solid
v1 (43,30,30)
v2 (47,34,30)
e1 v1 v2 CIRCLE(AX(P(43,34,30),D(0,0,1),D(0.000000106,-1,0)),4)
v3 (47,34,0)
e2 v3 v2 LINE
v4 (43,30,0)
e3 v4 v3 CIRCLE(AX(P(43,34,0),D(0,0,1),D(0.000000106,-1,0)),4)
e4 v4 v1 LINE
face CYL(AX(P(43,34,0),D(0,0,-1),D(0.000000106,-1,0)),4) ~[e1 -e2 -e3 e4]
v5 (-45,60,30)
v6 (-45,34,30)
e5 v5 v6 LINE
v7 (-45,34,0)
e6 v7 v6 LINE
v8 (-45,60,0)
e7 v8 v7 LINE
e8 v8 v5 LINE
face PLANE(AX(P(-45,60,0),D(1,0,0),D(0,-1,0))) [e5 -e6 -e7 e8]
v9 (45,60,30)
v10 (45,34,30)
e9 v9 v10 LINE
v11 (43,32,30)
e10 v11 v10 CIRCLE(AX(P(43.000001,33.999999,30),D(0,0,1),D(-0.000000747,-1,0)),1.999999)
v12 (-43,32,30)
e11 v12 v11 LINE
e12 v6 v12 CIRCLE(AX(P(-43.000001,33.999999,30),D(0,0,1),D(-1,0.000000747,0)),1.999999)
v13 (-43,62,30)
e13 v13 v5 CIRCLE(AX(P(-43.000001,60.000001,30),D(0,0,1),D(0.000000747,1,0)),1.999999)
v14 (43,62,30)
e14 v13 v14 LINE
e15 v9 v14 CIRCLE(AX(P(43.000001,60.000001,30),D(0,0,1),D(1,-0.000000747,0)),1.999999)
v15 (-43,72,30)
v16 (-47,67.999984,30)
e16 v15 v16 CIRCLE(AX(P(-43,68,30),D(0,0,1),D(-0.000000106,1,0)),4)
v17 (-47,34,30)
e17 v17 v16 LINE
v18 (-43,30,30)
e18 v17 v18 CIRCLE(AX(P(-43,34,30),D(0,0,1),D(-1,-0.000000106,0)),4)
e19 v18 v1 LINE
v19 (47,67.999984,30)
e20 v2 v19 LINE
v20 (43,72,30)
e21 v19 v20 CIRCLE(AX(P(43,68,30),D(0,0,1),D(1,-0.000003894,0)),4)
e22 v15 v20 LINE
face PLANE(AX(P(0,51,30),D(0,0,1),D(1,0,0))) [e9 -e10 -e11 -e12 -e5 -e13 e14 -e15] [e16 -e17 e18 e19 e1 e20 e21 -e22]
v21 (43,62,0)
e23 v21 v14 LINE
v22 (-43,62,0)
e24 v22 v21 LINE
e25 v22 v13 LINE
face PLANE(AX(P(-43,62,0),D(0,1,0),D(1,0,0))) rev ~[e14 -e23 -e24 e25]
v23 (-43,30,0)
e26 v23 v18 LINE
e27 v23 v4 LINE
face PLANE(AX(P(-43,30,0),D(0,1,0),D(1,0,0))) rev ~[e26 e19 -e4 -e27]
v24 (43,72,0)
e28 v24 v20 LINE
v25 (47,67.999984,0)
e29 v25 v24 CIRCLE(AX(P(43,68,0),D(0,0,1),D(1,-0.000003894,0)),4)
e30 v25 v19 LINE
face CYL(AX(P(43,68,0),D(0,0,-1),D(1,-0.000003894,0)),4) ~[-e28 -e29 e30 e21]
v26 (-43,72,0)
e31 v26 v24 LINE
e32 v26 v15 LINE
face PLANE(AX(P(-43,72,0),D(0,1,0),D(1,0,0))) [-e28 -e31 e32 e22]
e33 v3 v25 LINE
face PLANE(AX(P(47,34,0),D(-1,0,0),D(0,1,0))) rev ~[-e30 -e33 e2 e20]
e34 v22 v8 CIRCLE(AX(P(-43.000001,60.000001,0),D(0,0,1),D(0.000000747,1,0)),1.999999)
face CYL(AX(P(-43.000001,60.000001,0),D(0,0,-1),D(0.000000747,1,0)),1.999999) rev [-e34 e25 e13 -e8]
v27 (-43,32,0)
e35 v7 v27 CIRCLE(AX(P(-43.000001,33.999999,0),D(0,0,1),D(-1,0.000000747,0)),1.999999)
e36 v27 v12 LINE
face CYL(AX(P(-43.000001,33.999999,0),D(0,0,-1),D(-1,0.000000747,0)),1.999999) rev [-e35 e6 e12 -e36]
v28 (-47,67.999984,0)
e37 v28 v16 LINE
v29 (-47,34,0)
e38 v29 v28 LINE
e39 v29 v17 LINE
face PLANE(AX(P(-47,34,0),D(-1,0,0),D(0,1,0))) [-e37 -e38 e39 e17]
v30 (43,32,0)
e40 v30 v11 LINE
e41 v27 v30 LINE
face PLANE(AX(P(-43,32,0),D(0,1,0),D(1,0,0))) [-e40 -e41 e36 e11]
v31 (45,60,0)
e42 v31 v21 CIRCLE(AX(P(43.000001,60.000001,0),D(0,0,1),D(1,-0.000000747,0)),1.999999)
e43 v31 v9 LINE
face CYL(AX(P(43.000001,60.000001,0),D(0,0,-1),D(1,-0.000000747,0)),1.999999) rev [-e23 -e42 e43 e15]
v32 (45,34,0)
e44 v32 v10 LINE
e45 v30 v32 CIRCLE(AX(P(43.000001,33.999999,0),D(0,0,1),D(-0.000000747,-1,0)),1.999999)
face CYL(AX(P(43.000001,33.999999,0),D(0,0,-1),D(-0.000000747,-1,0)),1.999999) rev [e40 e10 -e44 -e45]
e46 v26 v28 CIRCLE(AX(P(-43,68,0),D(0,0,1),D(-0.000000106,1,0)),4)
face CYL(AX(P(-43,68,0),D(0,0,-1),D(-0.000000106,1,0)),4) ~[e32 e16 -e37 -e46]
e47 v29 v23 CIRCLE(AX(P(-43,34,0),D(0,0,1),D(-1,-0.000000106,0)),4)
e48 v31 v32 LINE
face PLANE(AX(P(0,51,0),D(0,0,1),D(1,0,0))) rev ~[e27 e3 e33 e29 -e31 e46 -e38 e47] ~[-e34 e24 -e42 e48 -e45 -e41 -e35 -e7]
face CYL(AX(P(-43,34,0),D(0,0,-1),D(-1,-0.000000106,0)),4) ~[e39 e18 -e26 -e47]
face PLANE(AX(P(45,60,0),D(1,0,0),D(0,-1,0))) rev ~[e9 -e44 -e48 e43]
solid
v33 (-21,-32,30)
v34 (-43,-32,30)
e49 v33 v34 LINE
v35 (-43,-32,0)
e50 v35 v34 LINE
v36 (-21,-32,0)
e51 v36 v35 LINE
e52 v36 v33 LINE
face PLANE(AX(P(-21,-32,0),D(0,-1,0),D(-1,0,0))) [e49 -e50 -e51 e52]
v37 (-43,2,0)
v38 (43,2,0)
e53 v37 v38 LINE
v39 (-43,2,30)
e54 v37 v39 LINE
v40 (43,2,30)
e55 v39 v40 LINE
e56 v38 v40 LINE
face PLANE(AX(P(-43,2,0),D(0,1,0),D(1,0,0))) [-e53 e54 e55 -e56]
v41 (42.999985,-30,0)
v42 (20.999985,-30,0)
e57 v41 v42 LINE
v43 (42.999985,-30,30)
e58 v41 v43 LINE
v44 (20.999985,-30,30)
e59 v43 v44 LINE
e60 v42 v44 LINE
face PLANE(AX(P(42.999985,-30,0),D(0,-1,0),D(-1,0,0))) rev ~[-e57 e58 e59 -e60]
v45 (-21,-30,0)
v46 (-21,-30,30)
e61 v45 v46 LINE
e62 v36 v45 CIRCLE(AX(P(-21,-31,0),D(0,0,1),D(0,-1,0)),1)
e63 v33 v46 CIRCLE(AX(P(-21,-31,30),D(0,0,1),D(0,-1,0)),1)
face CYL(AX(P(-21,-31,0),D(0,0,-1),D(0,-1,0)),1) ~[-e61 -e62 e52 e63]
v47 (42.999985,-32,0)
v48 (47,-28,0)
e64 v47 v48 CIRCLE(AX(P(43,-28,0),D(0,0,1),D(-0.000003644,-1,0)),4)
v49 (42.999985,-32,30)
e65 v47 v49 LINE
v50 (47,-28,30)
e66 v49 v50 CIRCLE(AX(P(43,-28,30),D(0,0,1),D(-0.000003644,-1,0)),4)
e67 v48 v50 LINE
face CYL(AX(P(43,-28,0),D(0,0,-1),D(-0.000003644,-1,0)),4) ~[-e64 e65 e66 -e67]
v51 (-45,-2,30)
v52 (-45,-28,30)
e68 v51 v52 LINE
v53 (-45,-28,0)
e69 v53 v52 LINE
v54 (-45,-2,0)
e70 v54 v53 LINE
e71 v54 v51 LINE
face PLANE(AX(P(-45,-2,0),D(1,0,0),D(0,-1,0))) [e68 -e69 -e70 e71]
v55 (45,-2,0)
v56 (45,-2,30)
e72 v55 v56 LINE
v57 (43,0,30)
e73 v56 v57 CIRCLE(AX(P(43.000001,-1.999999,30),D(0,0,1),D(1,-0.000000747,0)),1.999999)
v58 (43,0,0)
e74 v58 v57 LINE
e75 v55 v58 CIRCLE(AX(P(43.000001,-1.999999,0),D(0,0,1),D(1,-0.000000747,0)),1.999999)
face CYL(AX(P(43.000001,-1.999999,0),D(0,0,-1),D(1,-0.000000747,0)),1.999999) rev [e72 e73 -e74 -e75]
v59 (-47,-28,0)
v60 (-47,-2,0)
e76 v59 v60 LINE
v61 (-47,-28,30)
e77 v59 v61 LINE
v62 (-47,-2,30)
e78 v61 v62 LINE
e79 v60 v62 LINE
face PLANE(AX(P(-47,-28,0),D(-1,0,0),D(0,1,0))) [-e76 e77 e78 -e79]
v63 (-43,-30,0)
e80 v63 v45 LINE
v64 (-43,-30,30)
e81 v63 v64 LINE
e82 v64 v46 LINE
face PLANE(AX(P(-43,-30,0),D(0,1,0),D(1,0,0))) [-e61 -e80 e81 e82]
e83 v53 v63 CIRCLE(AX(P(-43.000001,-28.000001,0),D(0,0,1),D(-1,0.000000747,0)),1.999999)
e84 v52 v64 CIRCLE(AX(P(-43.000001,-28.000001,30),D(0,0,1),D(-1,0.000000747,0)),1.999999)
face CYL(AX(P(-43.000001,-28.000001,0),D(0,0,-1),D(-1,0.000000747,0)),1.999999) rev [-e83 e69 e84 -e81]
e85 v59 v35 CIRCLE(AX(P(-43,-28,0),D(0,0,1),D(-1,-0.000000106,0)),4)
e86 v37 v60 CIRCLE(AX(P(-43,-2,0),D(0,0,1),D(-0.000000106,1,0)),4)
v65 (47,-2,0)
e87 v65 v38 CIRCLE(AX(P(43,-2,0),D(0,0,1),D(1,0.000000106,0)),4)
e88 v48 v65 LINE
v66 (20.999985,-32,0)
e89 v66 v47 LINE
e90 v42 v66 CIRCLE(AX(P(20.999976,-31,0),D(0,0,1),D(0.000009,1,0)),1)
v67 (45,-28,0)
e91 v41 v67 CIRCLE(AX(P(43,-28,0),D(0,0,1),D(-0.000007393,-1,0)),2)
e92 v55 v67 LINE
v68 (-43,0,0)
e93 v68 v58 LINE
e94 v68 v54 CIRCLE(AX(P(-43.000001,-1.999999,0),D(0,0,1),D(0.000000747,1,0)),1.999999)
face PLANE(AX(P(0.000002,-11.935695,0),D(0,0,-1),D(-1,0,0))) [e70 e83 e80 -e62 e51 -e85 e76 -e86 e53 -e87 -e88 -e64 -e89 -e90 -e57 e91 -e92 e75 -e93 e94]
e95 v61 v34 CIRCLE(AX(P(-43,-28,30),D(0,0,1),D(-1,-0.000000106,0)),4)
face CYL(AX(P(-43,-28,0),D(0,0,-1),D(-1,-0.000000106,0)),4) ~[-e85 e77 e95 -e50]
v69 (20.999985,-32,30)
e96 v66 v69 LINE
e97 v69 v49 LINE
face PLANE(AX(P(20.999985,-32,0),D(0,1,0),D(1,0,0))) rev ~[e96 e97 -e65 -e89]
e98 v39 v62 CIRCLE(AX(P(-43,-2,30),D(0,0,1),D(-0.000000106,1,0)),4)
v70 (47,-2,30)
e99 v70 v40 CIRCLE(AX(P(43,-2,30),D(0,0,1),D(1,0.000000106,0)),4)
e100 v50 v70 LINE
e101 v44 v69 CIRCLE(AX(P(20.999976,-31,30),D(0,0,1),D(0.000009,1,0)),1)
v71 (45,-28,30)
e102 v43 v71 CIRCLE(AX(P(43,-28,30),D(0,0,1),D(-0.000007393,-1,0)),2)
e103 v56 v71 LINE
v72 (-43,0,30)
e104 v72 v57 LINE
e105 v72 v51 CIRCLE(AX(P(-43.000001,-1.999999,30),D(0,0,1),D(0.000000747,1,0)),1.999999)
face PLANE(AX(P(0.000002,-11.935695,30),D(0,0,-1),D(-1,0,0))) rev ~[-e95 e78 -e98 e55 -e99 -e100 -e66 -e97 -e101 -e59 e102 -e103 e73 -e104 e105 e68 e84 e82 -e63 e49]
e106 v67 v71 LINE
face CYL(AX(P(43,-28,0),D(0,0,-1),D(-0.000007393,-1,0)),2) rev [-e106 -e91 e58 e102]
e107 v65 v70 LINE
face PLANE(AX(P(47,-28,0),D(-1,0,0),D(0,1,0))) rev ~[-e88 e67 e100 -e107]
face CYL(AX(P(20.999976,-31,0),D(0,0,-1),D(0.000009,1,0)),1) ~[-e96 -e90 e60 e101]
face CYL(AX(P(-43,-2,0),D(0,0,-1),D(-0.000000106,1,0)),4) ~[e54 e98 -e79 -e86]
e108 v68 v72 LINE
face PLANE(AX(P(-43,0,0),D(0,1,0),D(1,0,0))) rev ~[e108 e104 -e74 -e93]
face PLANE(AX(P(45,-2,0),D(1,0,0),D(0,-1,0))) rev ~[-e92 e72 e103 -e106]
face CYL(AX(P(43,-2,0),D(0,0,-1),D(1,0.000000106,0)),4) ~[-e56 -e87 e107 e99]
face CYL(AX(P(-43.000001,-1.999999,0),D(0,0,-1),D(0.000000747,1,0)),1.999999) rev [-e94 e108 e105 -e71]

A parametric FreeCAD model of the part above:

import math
import FreeCAD as App
import Part
import Sketcher

V = App.Vector
Q = App.Units.Quantity

doc = App.newDocument("Part")
body = doc.addObject("PartDesign::Body", "Body")

# Sketch on XY plane
sketch1 = body.newObject("Sketcher::SketchObject", "Sketch")
sketch1.AttachmentSupport = (doc.getObject("XY_Plane"), [""])
sketch1.MapMode = "FlatFace"
sketch1.addGeometry(Part.ArcOfCircle(Part.Circle(V(-43, -2, 0), V(0, 0, 1), 2), math.radians(90), math.radians(180)), False)
sketch1.addGeometry(Part.LineSegment(V(-43, 0, 0), V(43, 0, 0)), False)
sketch1.addGeometry(Part.ArcOfCircle(Part.Circle(V(43, -2, 0), V(0, 0, 1), 2), math.radians(0), math.radians(90)), False)
sketch1.addGeometry(Part.LineSegment(V(45, -2, 0), V(45, -28, 0)), False)
sketch1.addGeometry(Part.ArcOfCircle(Part.Circle(V(43, -28, 0), V(0, 0, 1), 2), math.radians(-90), math.radians(0)), False)
sketch1.addGeometry(Part.LineSegment(V(43, -30, 0), V(21, -30, 0)), False)
sketch1.addGeometry(Part.ArcOfCircle(Part.Circle(V(21, -31, 0), V(0, 0, 1), 1), math.radians(90), math.radians(270)), False)
sketch1.addGeometry(Part.LineSegment(V(21, -32, 0), V(43, -32, 0)), False)
sketch1.addGeometry(Part.ArcOfCircle(Part.Circle(V(43, -28, 0), V(0, 0, 1), 4), math.radians(-90), math.radians(0)), False)
sketch1.addGeometry(Part.LineSegment(V(47, -28, 0), V(47, -2, 0)), False)
sketch1.addGeometry(Part.ArcOfCircle(Part.Circle(V(43, -2, 0), V(0, 0, 1), 4), math.radians(0), math.radians(90)), False)
sketch1.addGeometry(Part.LineSegment(V(43, 2, 0), V(-43, 2, 0)), False)
sketch1.addGeometry(Part.ArcOfCircle(Part.Circle(V(-43, -2, 0), V(0, 0, 1), 4), math.radians(90), math.radians(180)), False)
sketch1.addGeometry(Part.LineSegment(V(-47, -2, 0), V(-47, -28, 0)), False)
sketch1.addGeometry(Part.ArcOfCircle(Part.Circle(V(-43, -28, 0), V(0, 0, 1), 4), math.radians(-180), math.radians(-90)), False)
sketch1.addGeometry(Part.LineSegment(V(-43, -32, 0), V(-21, -32, 0)), False)
sketch1.addGeometry(Part.ArcOfCircle(Part.Circle(V(-21, -31, 0), V(0, 0, 1), 1), math.radians(-90), math.radians(90)), False)
sketch1.addGeometry(Part.LineSegment(V(-21, -30, 0), V(-43, -30, 0)), False)
sketch1.addGeometry(Part.ArcOfCircle(Part.Circle(V(-43, -28, 0), V(0, 0, 1), 2), math.radians(180), math.radians(270)), False)
sketch1.addGeometry(Part.LineSegment(V(-45, -28, 0), V(-45, -2, 0)), False)
sketch1.addConstraint(Sketcher.Constraint("Tangent", 0, 1, 1, 1))
sketch1.addConstraint(Sketcher.Constraint("Tangent", 1, 2, 2, 2))
sketch1.addConstraint(Sketcher.Constraint("Tangent", 2, 1, 3, 1))
sketch1.addConstraint(Sketcher.Constraint("Tangent", 3, 2, 4, 2))
sketch1.addConstraint(Sketcher.Constraint("Coincident", 4, 1, 5, 1))
sketch1.addConstraint(Sketcher.Constraint("Coincident", 5, 2, 6, 1))
sketch1.addConstraint(Sketcher.Constraint("Coincident", 6, 2, 7, 1))
sketch1.addConstraint(Sketcher.Constraint("Coincident", 7, 2, 8, 1))
sketch1.addConstraint(Sketcher.Constraint("Tangent", 8, 2, 9, 1))
sketch1.addConstraint(Sketcher.Constraint("Tangent", 9, 2, 10, 1))
sketch1.addConstraint(Sketcher.Constraint("Tangent", 10, 2, 11, 1))
sketch1.addConstraint(Sketcher.Constraint("Tangent", 11, 2, 12, 1))
sketch1.addConstraint(Sketcher.Constraint("Tangent", 12, 2, 13, 1))
sketch1.addConstraint(Sketcher.Constraint("Tangent", 13, 2, 14, 1))
sketch1.addConstraint(Sketcher.Constraint("Tangent", 14, 2, 15, 1))
sketch1.addConstraint(Sketcher.Constraint("Tangent", 15, 2, 16, 1))
sketch1.addConstraint(Sketcher.Constraint("Tangent", 16, 2, 17, 1))
sketch1.addConstraint(Sketcher.Constraint("Tangent", 17, 2, 18, 2))
sketch1.addConstraint(Sketcher.Constraint("Tangent", 18, 1, 19, 1))
sketch1.addConstraint(Sketcher.Constraint("Tangent", 19, 2, 0, 2))
sketch1.addConstraint(Sketcher.Constraint("Horizontal", 1))
sketch1.addConstraint(Sketcher.Constraint("Vertical", 3))
sketch1.addConstraint(Sketcher.Constraint("Horizontal", 5))
sketch1.addConstraint(Sketcher.Constraint("Horizontal", 7))
sketch1.addConstraint(Sketcher.Constraint("Vertical", 9))
sketch1.addConstraint(Sketcher.Constraint("Horizontal", 11))
sketch1.addConstraint(Sketcher.Constraint("Vertical", 13))
sketch1.addConstraint(Sketcher.Constraint("Horizontal", 15))
sketch1.addConstraint(Sketcher.Constraint("Horizontal", 17))
sketch1.addConstraint(Sketcher.Constraint("Vertical", 19))
sketch1.addConstraint(Sketcher.Constraint("Coincident", 8, 3, 4, 3))
sketch1.addConstraint(Sketcher.Constraint("Coincident", 10, 3, 2, 3))
sketch1.addConstraint(Sketcher.Constraint("Coincident", 12, 3, 0, 3))
sketch1.addConstraint(Sketcher.Constraint("Coincident", 18, 3, 14, 3))
sketch1.addConstraint(Sketcher.Constraint("Equal", 0, 2))
sketch1.addConstraint(Sketcher.Constraint("Equal", 2, 4))
sketch1.addConstraint(Sketcher.Constraint("Equal", 12, 14))
sketch1.addConstraint(Sketcher.Constraint("Symmetric", 0, 1, 1, 2, -1, 1))
sketch1.addConstraint(Sketcher.Constraint("Horizontal", 8, 3, 14, 3))
sketch1.addConstraint(Sketcher.Constraint("Vertical", 5, 2, 6, 2))
sketch1.addConstraint(Sketcher.Constraint("Vertical", 4, 1, 7, 2))
sketch1.addConstraint(Sketcher.Constraint("Equal", 7, 15))
sketch1.addConstraint(Sketcher.Constraint("Radius", 0, Q("1.999999 mm")))
sketch1.addConstraint(Sketcher.Constraint("Radius", 6, Q("1 mm")))
sketch1.addConstraint(Sketcher.Constraint("DistanceX", 1, 1, 1, 2, Q("86 mm")))
sketch1.addConstraint(Sketcher.Constraint("DistanceX", 5, 2, 5, 1, Q("22 mm")))
sketch1.addConstraint(Sketcher.Constraint("DistanceY", 3, 2, 3, 1, Q("26 mm")))
sketch1.addConstraint(Sketcher.Constraint("DistanceX", 6, 3, 4, 1, Q("22.000009 mm")))
sketch1.addConstraint(Sketcher.Constraint("DistanceX", -1, 1, 6, 3, Q("20.999976 mm")))
pad1 = body.newObject("PartDesign::Pad", "Pad")
pad1.Profile = sketch1
pad1.Length = 30
body2 = doc.addObject("PartDesign::Body", "Body001")

# Sketch on XY plane
sketch2 = body2.newObject("Sketcher::SketchObject", "Sketch001")
sketch2.AttachmentSupport = (doc.getObject("XY_Plane001"), [""])
sketch2.MapMode = "FlatFace"
sketch2.addGeometry(Part.ArcOfCircle(Part.Circle(V(-43, 34, 0), V(0, 0, 1), 4), math.radians(-180), math.radians(-90)), False)
sketch2.addGeometry(Part.LineSegment(V(-43, 30, 0), V(43, 30, 0)), False)
sketch2.addGeometry(Part.ArcOfCircle(Part.Circle(V(43, 34, 0), V(0, 0, 1), 4), math.radians(-90), math.radians(0)), False)
sketch2.addGeometry(Part.LineSegment(V(47, 34, 0), V(47, 68, 0)), False)
sketch2.addGeometry(Part.ArcOfCircle(Part.Circle(V(43, 68, 0), V(0, 0, 1), 4), math.radians(0), math.radians(90)), False)
sketch2.addGeometry(Part.LineSegment(V(43, 72, 0), V(-43, 72, 0)), False)
sketch2.addGeometry(Part.ArcOfCircle(Part.Circle(V(-43, 68, 0), V(0, 0, 1), 4), math.radians(90), math.radians(180)), False)
sketch2.addGeometry(Part.LineSegment(V(-47, 68, 0), V(-47, 34, 0)), False)
sketch2.addGeometry(Part.ArcOfCircle(Part.Circle(V(-43, 60, 0), V(0, 0, 1), 2), math.radians(90), math.radians(180)), False)
sketch2.addGeometry(Part.LineSegment(V(-43, 62, 0), V(43, 62, 0)), False)
sketch2.addGeometry(Part.ArcOfCircle(Part.Circle(V(43, 60, 0), V(0, 0, 1), 2), math.radians(0), math.radians(90)), False)
sketch2.addGeometry(Part.LineSegment(V(45, 60, 0), V(45, 34, 0)), False)
sketch2.addGeometry(Part.ArcOfCircle(Part.Circle(V(43, 34, 0), V(0, 0, 1), 2), math.radians(-90), math.radians(0)), False)
sketch2.addGeometry(Part.LineSegment(V(43, 32, 0), V(-43, 32, 0)), False)
sketch2.addGeometry(Part.ArcOfCircle(Part.Circle(V(-43, 34, 0), V(0, 0, 1), 2), math.radians(180), math.radians(270)), False)
sketch2.addGeometry(Part.LineSegment(V(-45, 34, 0), V(-45, 60, 0)), False)
sketch2.addConstraint(Sketcher.Constraint("Tangent", 0, 2, 1, 1))
sketch2.addConstraint(Sketcher.Constraint("Tangent", 1, 2, 2, 1))
sketch2.addConstraint(Sketcher.Constraint("Tangent", 2, 2, 3, 1))
sketch2.addConstraint(Sketcher.Constraint("Coincident", 3, 2, 4, 1))
sketch2.addConstraint(Sketcher.Constraint("Tangent", 4, 2, 5, 1))
sketch2.addConstraint(Sketcher.Constraint("Tangent", 5, 2, 6, 1))
sketch2.addConstraint(Sketcher.Constraint("Coincident", 6, 2, 7, 1))
sketch2.addConstraint(Sketcher.Constraint("Tangent", 7, 2, 0, 1))
sketch2.addConstraint(Sketcher.Constraint("Tangent", 8, 1, 9, 1))
sketch2.addConstraint(Sketcher.Constraint("Tangent", 9, 2, 10, 2))
sketch2.addConstraint(Sketcher.Constraint("Tangent", 10, 1, 11, 1))
sketch2.addConstraint(Sketcher.Constraint("Tangent", 11, 2, 12, 2))
sketch2.addConstraint(Sketcher.Constraint("Tangent", 12, 1, 13, 1))
sketch2.addConstraint(Sketcher.Constraint("Tangent", 13, 2, 14, 2))
sketch2.addConstraint(Sketcher.Constraint("Tangent", 14, 1, 15, 1))
sketch2.addConstraint(Sketcher.Constraint("Tangent", 15, 2, 8, 2))
sketch2.addConstraint(Sketcher.Constraint("Horizontal", 1))
sketch2.addConstraint(Sketcher.Constraint("Vertical", 3))
sketch2.addConstraint(Sketcher.Constraint("Horizontal", 5))
sketch2.addConstraint(Sketcher.Constraint("Vertical", 7))
sketch2.addConstraint(Sketcher.Constraint("Horizontal", 9))
sketch2.addConstraint(Sketcher.Constraint("Vertical", 11))
sketch2.addConstraint(Sketcher.Constraint("Horizontal", 13))
sketch2.addConstraint(Sketcher.Constraint("Vertical", 15))
sketch2.addConstraint(Sketcher.Constraint("Coincident", 12, 3, 2, 3))
sketch2.addConstraint(Sketcher.Constraint("Coincident", 14, 3, 0, 3))
sketch2.addConstraint(Sketcher.Constraint("Equal", 0, 2))
sketch2.addConstraint(Sketcher.Constraint("Equal", 2, 4))
sketch2.addConstraint(Sketcher.Constraint("Equal", 4, 6))
sketch2.addConstraint(Sketcher.Constraint("Equal", 8, 10))
sketch2.addConstraint(Sketcher.Constraint("Equal", 10, 12))
sketch2.addConstraint(Sketcher.Constraint("Symmetric", 3, 2, 6, 2, -2))
sketch2.addConstraint(Sketcher.Constraint("Radius", 0, Q("4 mm")))
sketch2.addConstraint(Sketcher.Constraint("Radius", 8, Q("1.999999 mm")))
sketch2.addConstraint(Sketcher.Constraint("DistanceX", 1, 1, 1, 2, Q("86 mm")))
sketch2.addConstraint(Sketcher.Constraint("DistanceY", 11, 2, 11, 1, Q("26 mm")))
sketch2.addConstraint(Sketcher.Constraint("DistanceY", -1, 1, 0, 3, Q("34 mm")))
sketch2.addConstraint(Sketcher.Constraint("DistanceY", -1, 1, 4, 3, Q("68 mm")))
sketch2.addConstraint(Sketcher.Constraint("DistanceY", 3, 1, 3, 2, Q("33.999984 mm")))
pad2 = body2.newObject("PartDesign::Pad", "Pad001")
pad2.Profile = sketch2
pad2.Length = 30

doc.recompute()
